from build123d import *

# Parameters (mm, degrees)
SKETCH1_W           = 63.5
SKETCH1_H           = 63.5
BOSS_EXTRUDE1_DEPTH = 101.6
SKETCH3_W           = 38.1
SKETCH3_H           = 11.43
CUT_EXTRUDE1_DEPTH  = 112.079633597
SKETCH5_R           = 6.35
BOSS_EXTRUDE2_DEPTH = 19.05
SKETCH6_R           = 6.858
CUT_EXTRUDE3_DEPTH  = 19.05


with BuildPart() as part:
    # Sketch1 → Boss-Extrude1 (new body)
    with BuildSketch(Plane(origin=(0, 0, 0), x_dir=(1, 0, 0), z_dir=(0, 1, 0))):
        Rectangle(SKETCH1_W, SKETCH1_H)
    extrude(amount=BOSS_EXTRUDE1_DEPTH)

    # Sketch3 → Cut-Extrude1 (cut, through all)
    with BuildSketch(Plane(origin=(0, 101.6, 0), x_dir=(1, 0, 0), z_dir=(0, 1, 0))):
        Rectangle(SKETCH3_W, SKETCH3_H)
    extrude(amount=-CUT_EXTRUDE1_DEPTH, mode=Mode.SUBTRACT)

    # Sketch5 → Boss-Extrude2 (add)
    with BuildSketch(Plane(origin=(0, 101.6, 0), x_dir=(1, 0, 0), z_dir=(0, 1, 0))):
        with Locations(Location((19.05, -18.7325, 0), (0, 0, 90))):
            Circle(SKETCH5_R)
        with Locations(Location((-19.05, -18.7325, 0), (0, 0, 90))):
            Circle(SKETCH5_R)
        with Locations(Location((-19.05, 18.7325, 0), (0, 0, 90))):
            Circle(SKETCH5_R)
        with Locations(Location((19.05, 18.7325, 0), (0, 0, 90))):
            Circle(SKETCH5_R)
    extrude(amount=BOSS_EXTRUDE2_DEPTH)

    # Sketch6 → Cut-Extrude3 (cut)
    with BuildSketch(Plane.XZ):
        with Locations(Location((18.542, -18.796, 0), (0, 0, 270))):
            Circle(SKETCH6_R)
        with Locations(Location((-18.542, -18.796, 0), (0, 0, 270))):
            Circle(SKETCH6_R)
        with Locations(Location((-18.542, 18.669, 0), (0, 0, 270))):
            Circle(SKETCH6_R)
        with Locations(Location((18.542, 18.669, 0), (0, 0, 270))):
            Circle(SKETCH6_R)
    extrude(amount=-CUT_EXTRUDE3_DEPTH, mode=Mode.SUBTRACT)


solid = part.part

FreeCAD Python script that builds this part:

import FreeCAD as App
import Part
import Sketcher
from FreeCAD import Vector
Q = App.Units.Quantity

doc = App.newDocument("Part")
body = doc.addObject("PartDesign::Body", "Body")

# Sketch on XZ plane
sketch1 = body.newObject("Sketcher::SketchObject", "Sketch")
sketch1.AttachmentSupport = (doc.getObject("XZ_Plane"), [""])
sketch1.MapMode = "FlatFace"
sketch1.addGeometry([
    Part.LineSegment(Vector(-32, -32, 0), Vector(-32, 32, 0)),
    Part.LineSegment(Vector(-32, 32, 0), Vector(32, 32, 0)),
    Part.LineSegment(Vector(32, 32, 0), Vector(32, -32, 0)),
    Part.LineSegment(Vector(32, -32, 0), Vector(-32, -32, 0)),
], False)
sketch1.addConstraint([
    Sketcher.Constraint("Coincident", 0, 2, 1, 1),
    Sketcher.Constraint("Coincident", 1, 2, 2, 1),
    Sketcher.Constraint("Coincident", 2, 2, 3, 1),
    Sketcher.Constraint("Coincident", 3, 2, 0, 1),
    Sketcher.Constraint("Vertical", 0),
    Sketcher.Constraint("Horizontal", 1),
    Sketcher.Constraint("Vertical", 2),
    Sketcher.Constraint("Horizontal", 3),
    Sketcher.Constraint("Symmetric", 0, 2, 2, 2, -1, 1),
    Sketcher.Constraint("Equal", 3, 0),
    Sketcher.Constraint("DistanceX", 1, 1, 1, 2, Q("2.5 in")),
])
pad1 = body.newObject("PartDesign::Pad", "Pad")
pad1.Profile = sketch1
pad1.Length = Q("4 in")
pad1.Reversed = True

# Sketch on XZ plane
sketch2 = body.newObject("Sketcher::SketchObject", "Sketch001")
sketch2.AttachmentSupport = (doc.getObject("XZ_Plane"), [""])
sketch2.MapMode = "FlatFace"
sketch2.AttachmentOffset = App.Placement(Vector(0, 0, -4 * 25.4), App.Rotation())
sketch2.addGeometry([
    Part.LineSegment(Vector(-19, -6, 0), Vector(-19, 6, 0)),
    Part.LineSegment(Vector(-19, 6, 0), Vector(19, 6, 0)),
    Part.LineSegment(Vector(19, 6, 0), Vector(19, -6, 0)),
    Part.LineSegment(Vector(19, -6, 0), Vector(-19, -6, 0)),
], False)
sketch2.addConstraint([
    Sketcher.Constraint("Coincident", 0, 2, 1, 1),
    Sketcher.Constraint("Coincident", 1, 2, 2, 1),
    Sketcher.Constraint("Coincident", 2, 2, 3, 1),
    Sketcher.Constraint("Coincident", 3, 2, 0, 1),
    Sketcher.Constraint("Vertical", 0),
    Sketcher.Constraint("Horizontal", 1),
    Sketcher.Constraint("Vertical", 2),
    Sketcher.Constraint("Horizontal", 3),
    Sketcher.Constraint("Symmetric", 0, 2, 2, 2, -1, 1),
    Sketcher.Constraint("DistanceX", 1, 1, 1, 2, Q("1.5 in")),
    Sketcher.Constraint("DistanceY", 0, 1, 0, 2, Q("0.45 in")),
])
pocket1 = body.newObject("PartDesign::Pocket", "Pocket")
pocket1.Profile = sketch2
pocket1.Type = "ThroughAll"
pocket1.Reversed = True

# Sketch on XZ plane
sketch3 = body.newObject("Sketcher::SketchObject", "Sketch002")
sketch3.AttachmentSupport = (doc.getObject("XZ_Plane"), [""])
sketch3.MapMode = "FlatFace"
sketch3.AttachmentOffset = App.Placement(Vector(0, 0, -4 * 25.4), App.Rotation())
sketch3.addGeometry([
    Part.Circle(Vector(19, 19, 0), Vector(0, 0, 1), 6),
    Part.Circle(Vector(-19, 19, 0), Vector(0, 0, 1), 6),
    Part.Circle(Vector(-19, -19, 0), Vector(0, 0, 1), 6),
    Part.Circle(Vector(19, -19, 0), Vector(0, 0, 1), 6),
], False)
sketch3.addConstraint([
    Sketcher.Constraint("Equal", 0, 1),
    Sketcher.Constraint("Equal", 1, 2),
    Sketcher.Constraint("Equal", 2, 3),
    Sketcher.Constraint("Symmetric", 0, 3, 2, 3, -1, 1),
    Sketcher.Constraint("Symmetric", 1, 3, 3, 3, -1, 1),
    Sketcher.Constraint("Symmetric", 0, 3, 1, 3, -2),
    Sketcher.Constraint("Diameter", 0, Q("0.5 in")),
    Sketcher.Constraint("DistanceX", 1, 3, 0, 3, Q("1.5 in")),
    Sketcher.Constraint("DistanceY", 2, 3, 1, 3, Q("1.475 in")),
])
pad2 = body.newObject("PartDesign::Pad", "Pad001")
pad2.Profile = sketch3
pad2.Length = Q("0.75 in")
pad2.Reversed = True

# Sketch on XZ plane
sketch4 = body.newObject("Sketcher::SketchObject", "Sketch003")
sketch4.AttachmentSupport = (doc.getObject("XZ_Plane"), [""])
sketch4.MapMode = "FlatFace"
sketch4.addGeometry([
    Part.Circle(Vector(19, -19, 0), Vector(0, 0, 1), 7),
    Part.Circle(Vector(-19, -19, 0), Vector(0, 0, 1), 7),
    Part.Circle(Vector(-19, 19, 0), Vector(0, 0, 1), 7),
    Part.Circle(Vector(19, 19, 0), Vector(0, 0, 1), 7),
], False)
sketch4.addConstraint([
    Sketcher.Constraint("Equal", 0, 1),
    Sketcher.Constraint("Equal", 1, 2),
    Sketcher.Constraint("Equal", 2, 3),
    Sketcher.Constraint("Symmetric", 0, 3, 1, 3, -2),
    Sketcher.Constraint("Symmetric", 2, 3, 3, 3, -2),
    Sketcher.Constraint("Vertical", 1, 3, 2, 3),
    Sketcher.Constraint("Diameter", 0, Q("0.54 in")),
    Sketcher.Constraint("DistanceX", -1, 1, 0, 3, Q("0.73 in")),
    Sketcher.Constraint("DistanceY", 0, 3, -1, 1, Q("0.74 in")),
    Sketcher.Constraint("DistanceY", -1, 1, 2, 3, Q("0.735 in")),
])
pocket2 = body.newObject("PartDesign::Pocket", "Pocket001")
pocket2.Profile = sketch4
pocket2.Length = Q("0.75 in")

doc.recompute()
